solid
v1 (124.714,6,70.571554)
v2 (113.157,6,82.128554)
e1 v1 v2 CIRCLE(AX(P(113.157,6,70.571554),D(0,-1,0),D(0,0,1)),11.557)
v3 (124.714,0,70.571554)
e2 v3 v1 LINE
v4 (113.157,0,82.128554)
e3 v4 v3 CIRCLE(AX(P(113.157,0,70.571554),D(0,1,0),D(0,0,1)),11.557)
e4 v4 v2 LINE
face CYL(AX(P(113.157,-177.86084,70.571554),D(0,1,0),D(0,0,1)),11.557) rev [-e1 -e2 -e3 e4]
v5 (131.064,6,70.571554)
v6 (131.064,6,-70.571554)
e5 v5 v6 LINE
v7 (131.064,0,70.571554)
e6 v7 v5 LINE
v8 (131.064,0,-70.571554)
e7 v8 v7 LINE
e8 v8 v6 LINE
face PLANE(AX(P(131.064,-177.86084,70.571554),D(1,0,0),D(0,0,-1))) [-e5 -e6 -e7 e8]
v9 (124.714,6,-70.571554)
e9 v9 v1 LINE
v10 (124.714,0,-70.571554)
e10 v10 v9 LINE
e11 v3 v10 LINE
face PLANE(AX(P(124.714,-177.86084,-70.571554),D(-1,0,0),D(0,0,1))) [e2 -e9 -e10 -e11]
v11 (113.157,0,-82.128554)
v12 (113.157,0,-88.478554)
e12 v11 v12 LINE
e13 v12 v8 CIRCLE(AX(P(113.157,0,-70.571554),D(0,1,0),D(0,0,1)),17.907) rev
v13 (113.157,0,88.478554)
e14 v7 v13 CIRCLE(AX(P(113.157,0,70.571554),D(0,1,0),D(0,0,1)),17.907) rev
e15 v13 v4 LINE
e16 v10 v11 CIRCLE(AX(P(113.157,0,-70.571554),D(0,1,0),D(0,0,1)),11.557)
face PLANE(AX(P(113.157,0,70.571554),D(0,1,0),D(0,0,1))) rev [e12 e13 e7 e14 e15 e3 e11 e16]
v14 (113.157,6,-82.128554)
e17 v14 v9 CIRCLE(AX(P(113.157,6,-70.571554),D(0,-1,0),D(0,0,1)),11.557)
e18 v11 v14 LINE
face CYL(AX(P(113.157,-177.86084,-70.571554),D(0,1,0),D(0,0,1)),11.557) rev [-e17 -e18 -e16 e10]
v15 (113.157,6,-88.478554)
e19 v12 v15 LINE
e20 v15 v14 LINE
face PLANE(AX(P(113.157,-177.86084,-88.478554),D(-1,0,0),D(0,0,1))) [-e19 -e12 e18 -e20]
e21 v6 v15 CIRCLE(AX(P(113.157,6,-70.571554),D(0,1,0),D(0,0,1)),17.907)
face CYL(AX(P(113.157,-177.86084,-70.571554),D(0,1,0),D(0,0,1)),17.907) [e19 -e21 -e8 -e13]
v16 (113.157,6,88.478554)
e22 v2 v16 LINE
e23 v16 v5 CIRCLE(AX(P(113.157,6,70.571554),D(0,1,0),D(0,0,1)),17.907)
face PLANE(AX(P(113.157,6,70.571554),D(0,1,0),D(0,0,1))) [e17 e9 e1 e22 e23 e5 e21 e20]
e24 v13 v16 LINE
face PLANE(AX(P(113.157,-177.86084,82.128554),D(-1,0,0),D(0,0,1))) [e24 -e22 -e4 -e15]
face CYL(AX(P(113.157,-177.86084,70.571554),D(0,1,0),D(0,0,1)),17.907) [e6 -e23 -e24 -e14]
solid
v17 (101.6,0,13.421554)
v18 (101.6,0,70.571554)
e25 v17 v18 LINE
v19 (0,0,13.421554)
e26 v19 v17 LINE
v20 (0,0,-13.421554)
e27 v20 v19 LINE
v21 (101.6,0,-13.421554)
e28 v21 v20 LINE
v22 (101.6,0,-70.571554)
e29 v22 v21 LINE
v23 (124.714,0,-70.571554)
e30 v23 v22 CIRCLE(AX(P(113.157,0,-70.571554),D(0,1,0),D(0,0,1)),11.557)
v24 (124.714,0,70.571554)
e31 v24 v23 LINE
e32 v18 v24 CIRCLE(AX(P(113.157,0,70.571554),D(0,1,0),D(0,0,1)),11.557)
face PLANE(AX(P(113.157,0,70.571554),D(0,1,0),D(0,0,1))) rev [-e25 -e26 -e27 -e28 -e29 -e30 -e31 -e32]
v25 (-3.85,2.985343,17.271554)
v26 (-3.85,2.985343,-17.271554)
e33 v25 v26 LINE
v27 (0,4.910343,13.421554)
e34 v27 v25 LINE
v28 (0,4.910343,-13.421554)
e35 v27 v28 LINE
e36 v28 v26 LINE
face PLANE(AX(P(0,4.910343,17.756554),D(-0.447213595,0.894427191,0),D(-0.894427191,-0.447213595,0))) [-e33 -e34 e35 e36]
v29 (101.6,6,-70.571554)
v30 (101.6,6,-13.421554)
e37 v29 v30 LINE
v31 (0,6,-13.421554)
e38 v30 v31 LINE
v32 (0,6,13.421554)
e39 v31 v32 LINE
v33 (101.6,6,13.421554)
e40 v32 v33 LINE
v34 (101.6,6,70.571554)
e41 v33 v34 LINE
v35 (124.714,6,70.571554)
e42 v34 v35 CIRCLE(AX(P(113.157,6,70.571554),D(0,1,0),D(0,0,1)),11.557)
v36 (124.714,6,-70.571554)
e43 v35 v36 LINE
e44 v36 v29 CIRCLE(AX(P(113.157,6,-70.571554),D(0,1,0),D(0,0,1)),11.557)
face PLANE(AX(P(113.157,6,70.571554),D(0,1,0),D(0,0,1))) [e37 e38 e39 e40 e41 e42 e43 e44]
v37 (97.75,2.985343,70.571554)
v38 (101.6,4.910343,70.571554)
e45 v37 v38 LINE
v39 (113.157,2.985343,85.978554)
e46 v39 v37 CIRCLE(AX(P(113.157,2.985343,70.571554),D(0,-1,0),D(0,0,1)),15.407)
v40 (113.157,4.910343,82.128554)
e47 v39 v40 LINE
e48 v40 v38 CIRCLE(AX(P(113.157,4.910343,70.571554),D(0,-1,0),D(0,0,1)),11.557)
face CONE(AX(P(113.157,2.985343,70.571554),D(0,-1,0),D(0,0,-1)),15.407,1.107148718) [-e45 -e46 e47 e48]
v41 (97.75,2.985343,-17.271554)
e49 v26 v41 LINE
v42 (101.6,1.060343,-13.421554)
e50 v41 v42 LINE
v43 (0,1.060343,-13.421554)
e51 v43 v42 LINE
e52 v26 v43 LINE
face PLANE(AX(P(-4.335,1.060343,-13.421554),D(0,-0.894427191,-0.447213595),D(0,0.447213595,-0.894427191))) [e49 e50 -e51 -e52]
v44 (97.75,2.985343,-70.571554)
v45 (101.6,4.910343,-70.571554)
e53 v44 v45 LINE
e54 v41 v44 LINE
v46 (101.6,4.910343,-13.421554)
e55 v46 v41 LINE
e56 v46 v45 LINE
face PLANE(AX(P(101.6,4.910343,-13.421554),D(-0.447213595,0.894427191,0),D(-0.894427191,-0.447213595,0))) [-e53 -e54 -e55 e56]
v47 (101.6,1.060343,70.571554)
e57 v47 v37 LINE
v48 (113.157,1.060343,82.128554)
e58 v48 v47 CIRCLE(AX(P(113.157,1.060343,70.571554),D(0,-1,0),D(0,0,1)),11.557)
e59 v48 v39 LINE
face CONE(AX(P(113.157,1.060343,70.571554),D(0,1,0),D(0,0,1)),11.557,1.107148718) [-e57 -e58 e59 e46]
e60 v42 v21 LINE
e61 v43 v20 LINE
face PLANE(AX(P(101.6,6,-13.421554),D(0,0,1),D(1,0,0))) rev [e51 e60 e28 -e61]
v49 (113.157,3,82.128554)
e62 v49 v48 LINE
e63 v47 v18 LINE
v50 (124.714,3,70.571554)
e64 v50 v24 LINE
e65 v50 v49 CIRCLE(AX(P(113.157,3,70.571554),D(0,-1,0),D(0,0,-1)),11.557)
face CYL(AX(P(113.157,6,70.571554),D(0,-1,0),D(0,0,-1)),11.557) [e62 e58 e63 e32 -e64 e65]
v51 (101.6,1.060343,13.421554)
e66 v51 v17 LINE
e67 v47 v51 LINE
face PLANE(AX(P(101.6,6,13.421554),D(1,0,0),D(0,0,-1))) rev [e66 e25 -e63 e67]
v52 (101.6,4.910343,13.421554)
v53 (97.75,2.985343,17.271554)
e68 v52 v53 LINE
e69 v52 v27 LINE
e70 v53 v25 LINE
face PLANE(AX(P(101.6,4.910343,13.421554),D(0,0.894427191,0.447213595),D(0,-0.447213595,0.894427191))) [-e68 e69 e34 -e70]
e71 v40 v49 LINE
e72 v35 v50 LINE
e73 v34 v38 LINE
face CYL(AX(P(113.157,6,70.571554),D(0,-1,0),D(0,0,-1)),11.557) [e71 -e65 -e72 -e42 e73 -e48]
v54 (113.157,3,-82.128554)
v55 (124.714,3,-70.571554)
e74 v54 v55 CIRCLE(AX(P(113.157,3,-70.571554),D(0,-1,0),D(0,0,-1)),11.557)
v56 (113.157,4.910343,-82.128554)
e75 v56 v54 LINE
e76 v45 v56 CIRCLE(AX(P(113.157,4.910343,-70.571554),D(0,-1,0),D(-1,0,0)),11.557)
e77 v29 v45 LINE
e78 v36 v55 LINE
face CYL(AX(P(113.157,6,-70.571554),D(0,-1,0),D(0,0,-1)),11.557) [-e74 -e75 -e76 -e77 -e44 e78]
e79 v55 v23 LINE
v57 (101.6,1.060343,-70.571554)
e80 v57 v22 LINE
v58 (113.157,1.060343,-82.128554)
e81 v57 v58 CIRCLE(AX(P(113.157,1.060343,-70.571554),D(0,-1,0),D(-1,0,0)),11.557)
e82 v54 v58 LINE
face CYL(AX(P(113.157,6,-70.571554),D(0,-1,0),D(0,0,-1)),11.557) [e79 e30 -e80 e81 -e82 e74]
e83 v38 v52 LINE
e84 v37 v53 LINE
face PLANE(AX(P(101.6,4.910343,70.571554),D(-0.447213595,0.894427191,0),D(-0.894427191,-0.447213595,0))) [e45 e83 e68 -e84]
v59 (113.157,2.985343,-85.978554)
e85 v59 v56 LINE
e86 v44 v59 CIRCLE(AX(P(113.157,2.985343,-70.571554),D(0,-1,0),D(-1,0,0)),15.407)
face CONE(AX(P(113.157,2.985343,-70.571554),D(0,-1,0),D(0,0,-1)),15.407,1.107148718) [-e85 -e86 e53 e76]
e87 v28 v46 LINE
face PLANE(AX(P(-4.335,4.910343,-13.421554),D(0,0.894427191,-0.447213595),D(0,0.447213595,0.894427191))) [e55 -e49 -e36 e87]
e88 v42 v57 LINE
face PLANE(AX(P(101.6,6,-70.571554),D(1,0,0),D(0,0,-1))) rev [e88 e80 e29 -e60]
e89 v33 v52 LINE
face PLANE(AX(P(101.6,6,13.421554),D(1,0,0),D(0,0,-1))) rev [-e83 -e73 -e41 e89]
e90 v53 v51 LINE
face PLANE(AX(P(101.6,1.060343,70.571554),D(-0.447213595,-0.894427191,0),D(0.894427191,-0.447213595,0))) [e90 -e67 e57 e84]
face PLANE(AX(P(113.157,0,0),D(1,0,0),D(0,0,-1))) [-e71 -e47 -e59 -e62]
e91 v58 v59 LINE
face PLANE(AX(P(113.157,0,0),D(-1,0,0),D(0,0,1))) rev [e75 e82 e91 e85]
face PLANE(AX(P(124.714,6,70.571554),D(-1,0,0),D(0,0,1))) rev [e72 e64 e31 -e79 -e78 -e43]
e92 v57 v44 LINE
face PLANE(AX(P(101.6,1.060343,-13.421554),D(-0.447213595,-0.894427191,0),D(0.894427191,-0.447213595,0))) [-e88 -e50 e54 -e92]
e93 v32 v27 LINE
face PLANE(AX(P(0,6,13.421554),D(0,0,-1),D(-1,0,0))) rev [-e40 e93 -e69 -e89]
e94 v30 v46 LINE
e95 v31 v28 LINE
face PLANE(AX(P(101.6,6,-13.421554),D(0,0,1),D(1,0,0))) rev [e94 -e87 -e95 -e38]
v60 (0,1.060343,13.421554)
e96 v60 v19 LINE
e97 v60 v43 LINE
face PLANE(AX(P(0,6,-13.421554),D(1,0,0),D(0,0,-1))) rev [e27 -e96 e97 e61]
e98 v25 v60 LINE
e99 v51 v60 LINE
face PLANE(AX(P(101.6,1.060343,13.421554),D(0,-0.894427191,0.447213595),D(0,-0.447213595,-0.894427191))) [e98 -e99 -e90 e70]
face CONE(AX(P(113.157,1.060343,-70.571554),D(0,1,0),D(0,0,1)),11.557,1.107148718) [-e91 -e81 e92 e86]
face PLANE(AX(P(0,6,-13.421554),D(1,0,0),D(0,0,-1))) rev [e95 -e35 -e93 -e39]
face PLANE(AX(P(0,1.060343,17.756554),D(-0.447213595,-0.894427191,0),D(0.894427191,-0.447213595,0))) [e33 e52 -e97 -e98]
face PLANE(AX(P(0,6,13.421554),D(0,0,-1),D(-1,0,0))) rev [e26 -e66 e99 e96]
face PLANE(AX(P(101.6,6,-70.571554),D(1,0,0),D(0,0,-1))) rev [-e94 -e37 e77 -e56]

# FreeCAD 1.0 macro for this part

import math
import FreeCAD as App
import Part
import Sketcher

V = App.Vector
Q = App.Units.Quantity


def add_polygon(sketch, points):
    """Adds a closed chain of lines whose ends are joined by coincident constraints."""
    first, n = sketch.GeometryCount, len(points)
    for a, b in zip(points, points[1:] + points[:1]):
        sketch.addGeometry(Part.LineSegment(App.Vector(*a, 0), App.Vector(*b, 0)), False)
    for i in range(n):
        sketch.addConstraint(Sketcher.Constraint("Coincident", first + i, 2, first + (i + 1) % n, 1))

doc = App.newDocument("Part")
body = doc.addObject("PartDesign::Body", "Body")

sketch1 = body.newObject("Sketcher::SketchObject", "Sketch")
sketch1.AttachmentSupport = (doc.getObject("XZ_Plane"), [""])
sketch1.MapMode = "FlatFace"
sketch1.addGeometry([
    Part.LineSegment(V(0, 13, 0), V(102, 13, 0)),
    Part.LineSegment(V(102, 13, 0), V(102, 71, 0)),
    Part.ArcOfCircle(Part.Circle(V(113, 71, 0), V(0, 0, 1), 12), math.radians(0), math.radians(180)),
    Part.LineSegment(V(125, 71, 0), V(125, -71, 0)),
    Part.ArcOfCircle(Part.Circle(V(113, -71, 0), V(0, 0, 1), 12), math.radians(180), math.radians(360)),
    Part.LineSegment(V(102, -71, 0), V(102, -13, 0)),
    Part.LineSegment(V(102, -13, 0), V(0, -13, 0)),
    Part.LineSegment(V(0, -13, 0), V(0, 13, 0)),
], False)
sketch1.addConstraint([
    Sketcher.Constraint("Coincident", 0, 2, 1, 1),
    Sketcher.Constraint("Tangent", 1, 2, 2, 2),
    Sketcher.Constraint("Tangent", 2, 1, 3, 1),
    Sketcher.Constraint("Tangent", 3, 2, 4, 2),
    Sketcher.Constraint("Tangent", 4, 1, 5, 1),
    Sketcher.Constraint("Coincident", 5, 2, 6, 1),
    Sketcher.Constraint("Coincident", 6, 2, 7, 1),
    Sketcher.Constraint("Coincident", 7, 2, 0, 1),
    Sketcher.Constraint("Horizontal", 0),
    Sketcher.Constraint("Vertical", 1),
    Sketcher.Constraint("Vertical", 3),
    Sketcher.Constraint("Vertical", 5),
    Sketcher.Constraint("Horizontal", 6),
    Sketcher.Constraint("Vertical", 7),
    Sketcher.Constraint("Equal", 2, 4),
    Sketcher.Constraint("Symmetric", 6, 2, 7, 2, -1, 1),
    Sketcher.Constraint("Equal", 1, 5),
    Sketcher.Constraint("DistanceX", 0, 1, 0, 2, Q("4 in")),
    Sketcher.Constraint("Radius", 2, Q("0.455 in")),
    Sketcher.Constraint("DistanceY", 1, 1, 1, 2, Q("2.25 in")),
    Sketcher.Constraint("DistanceY", 3, 2, 3, 1, Q("141.143107 mm")),
])
pad1 = body.newObject("PartDesign::Pad", "Pad")
pad1.Profile = sketch1
pad1.Length = 6
pad1.Reversed = True

sketch2 = body.newObject("Sketcher::SketchObject", "Sketch001")
sketch2.AttachmentSupport = (doc.getObject("YZ_Plane"), [""])
sketch2.MapMode = "FlatFace"
sketch2.AttachmentOffset = App.Placement(V(0, 0, 4.455 * 25.4), App.Rotation())
add_polygon(sketch2, [(4.9, -82.1), (1.1, -82.1), (3, -86)])
sketch2.addConstraint([
    Sketcher.Constraint("Horizontal", 0),
    Sketcher.Constraint("Equal", 1, 2),
    Sketcher.Constraint("DistanceX", 0, 2, 0, 1, Q("3.85 mm")),
    Sketcher.Constraint("DistanceY", 1, 2, 0, 2, Q("3.85 mm")),
    Sketcher.Constraint("DistanceX", -1, 1, 0, 2, Q("1.060343 mm")),
    Sketcher.Constraint("DistanceY", 0, 2, -1, 1, Q("82.128554 mm")),
])

sketch3 = body.newObject("Sketcher::SketchObject", "Sketch002")
sketch3.AttachmentSupport = (doc.getObject("XZ_Plane"), [""])
sketch3.MapMode = "FlatFace"
sketch3.AttachmentOffset = App.Placement(V(0, 0, -3), App.Rotation())
sketch3.addGeometry([
    Part.ArcOfCircle(Part.Circle(V(113, 71, 0), V(0, 0, 1), 12), math.radians(90), math.radians(180)),
    Part.LineSegment(V(102, 71, 0), V(102, 13, 0)),
    Part.LineSegment(V(102, 13, 0), V(0, 13, 0)),
    Part.LineSegment(V(0, 13, 0), V(0, -13, 0)),
    Part.LineSegment(V(0, -13, 0), V(102, -13, 0)),
    Part.LineSegment(V(102, -13, 0), V(102, -71, 0)),
    Part.ArcOfCircle(Part.Circle(V(113, -71, 0), V(0, 0, 1), 12), math.radians(-180), math.radians(-90)),
], False)
sketch3.addConstraint([
    Sketcher.Constraint("Tangent", 0, 2, 1, 1),
    Sketcher.Constraint("Coincident", 1, 2, 2, 1),
    Sketcher.Constraint("Coincident", 2, 2, 3, 1),
    Sketcher.Constraint("Coincident", 3, 2, 4, 1),
    Sketcher.Constraint("Coincident", 4, 2, 5, 1),
    Sketcher.Constraint("Tangent", 5, 2, 6, 1),
    Sketcher.Constraint("Vertical", 1),
    Sketcher.Constraint("Horizontal", 2),
    Sketcher.Constraint("Vertical", 3),
    Sketcher.Constraint("Horizontal", 4),
    Sketcher.Constraint("Vertical", 5),
    Sketcher.Constraint("Equal", 0, 6),
    Sketcher.Constraint("Symmetric", 2, 2, 3, 2, -1, 1),
    Sketcher.Constraint("Symmetric", 0, 3, 6, 3, -1),
    Sketcher.Constraint("Vertical", 6, 3, 0, 1),
    Sketcher.Constraint("Vertical", 0, 1, 6, 2),
    Sketcher.Constraint("DistanceX", 2, 2, 2, 1, Q("4 in")),
    Sketcher.Constraint("Radius", 0, Q("0.455 in")),
    Sketcher.Constraint("DistanceY", 1, 2, 1, 1, Q("2.25 in")),
    Sketcher.Constraint("DistanceY", 3, 2, 3, 1, Q("26.843107 mm")),
])
doc.recompute()

additivepipe = body.newObject("PartDesign::AdditivePipe", "AdditivePipe")
additivepipe.Profile = sketch2
additivepipe.Spine = (sketch3, ["Edge1", "Edge2", "Edge3", "Edge4", "Edge5", "Edge6", "Edge7"])
additivepipe.Transition = "Right corner"
body2 = doc.addObject("PartDesign::Body", "Body001")

sketch4 = body2.newObject("Sketcher::SketchObject", "Sketch003")
sketch4.AttachmentSupport = (doc.getObject("XZ_Plane001"), [""])
sketch4.MapMode = "FlatFace"
sketch4.AttachmentOffset = App.Placement(V(0, 0, -6), App.Rotation())
sketch4.addGeometry([
    Part.LineSegment(V(131, 71, 0), V(131, -71, 0)),
    Part.ArcOfCircle(Part.Circle(V(113, -71, 0), V(0, 0, 1), 18), math.radians(-90), math.radians(0)),
    Part.LineSegment(V(113, -88, 0), V(113, -82, 0)),
    Part.ArcOfCircle(Part.Circle(V(113, -71, 0), V(0, 0, 1), 12), math.radians(-90), math.radians(0)),
    Part.LineSegment(V(125, -71, 0), V(125, 71, 0)),
    Part.ArcOfCircle(Part.Circle(V(113, 71, 0), V(0, 0, 1), 12), math.radians(0), math.radians(90)),
    Part.LineSegment(V(113, 82, 0), V(113, 88, 0)),
    Part.ArcOfCircle(Part.Circle(V(113, 71, 0), V(0, 0, 1), 18), math.radians(0), math.radians(90)),
], False)
sketch4.addConstraint([
    Sketcher.Constraint("Tangent", 0, 2, 1, 2),
    Sketcher.Constraint("Coincident", 1, 1, 2, 1),
    Sketcher.Constraint("Coincident", 2, 2, 3, 1),
    Sketcher.Constraint("Tangent", 3, 2, 4, 1),
    Sketcher.Constraint("Tangent", 4, 2, 5, 1),
    Sketcher.Constraint("Coincident", 5, 2, 6, 1),
    Sketcher.Constraint("Coincident", 6, 2, 7, 2),
    Sketcher.Constraint("Tangent", 7, 1, 0, 1),
    Sketcher.Constraint("Vertical", 0),
    Sketcher.Constraint("Vertical", 2),
    Sketcher.Constraint("Vertical", 4),
    Sketcher.Constraint("Vertical", 6),
    Sketcher.Constraint("Coincident", 3, 3, 1, 3),
    Sketcher.Constraint("Coincident", 7, 3, 5, 3),
    Sketcher.Constraint("Equal", 3, 5),
    Sketcher.Constraint("Symmetric", 2, 2, 5, 2, -1),
    Sketcher.Constraint("Vertical", 7, 3, 1, 1),
    Sketcher.Constraint("Radius", 1, Q("0.705 in")),
    Sketcher.Constraint("Radius", 3, Q("0.455 in")),
    Sketcher.Constraint("DistanceX", -1, 1, 0, 2, Q("5.16 in")),
    Sketcher.Constraint("DistanceY", 0, 2, 0, 1, Q("141.143107 mm")),
])
pad2 = body2.newObject("PartDesign::Pad", "Pad001")
pad2.Profile = sketch4
pad2.Length = 6

doc.recompute()
